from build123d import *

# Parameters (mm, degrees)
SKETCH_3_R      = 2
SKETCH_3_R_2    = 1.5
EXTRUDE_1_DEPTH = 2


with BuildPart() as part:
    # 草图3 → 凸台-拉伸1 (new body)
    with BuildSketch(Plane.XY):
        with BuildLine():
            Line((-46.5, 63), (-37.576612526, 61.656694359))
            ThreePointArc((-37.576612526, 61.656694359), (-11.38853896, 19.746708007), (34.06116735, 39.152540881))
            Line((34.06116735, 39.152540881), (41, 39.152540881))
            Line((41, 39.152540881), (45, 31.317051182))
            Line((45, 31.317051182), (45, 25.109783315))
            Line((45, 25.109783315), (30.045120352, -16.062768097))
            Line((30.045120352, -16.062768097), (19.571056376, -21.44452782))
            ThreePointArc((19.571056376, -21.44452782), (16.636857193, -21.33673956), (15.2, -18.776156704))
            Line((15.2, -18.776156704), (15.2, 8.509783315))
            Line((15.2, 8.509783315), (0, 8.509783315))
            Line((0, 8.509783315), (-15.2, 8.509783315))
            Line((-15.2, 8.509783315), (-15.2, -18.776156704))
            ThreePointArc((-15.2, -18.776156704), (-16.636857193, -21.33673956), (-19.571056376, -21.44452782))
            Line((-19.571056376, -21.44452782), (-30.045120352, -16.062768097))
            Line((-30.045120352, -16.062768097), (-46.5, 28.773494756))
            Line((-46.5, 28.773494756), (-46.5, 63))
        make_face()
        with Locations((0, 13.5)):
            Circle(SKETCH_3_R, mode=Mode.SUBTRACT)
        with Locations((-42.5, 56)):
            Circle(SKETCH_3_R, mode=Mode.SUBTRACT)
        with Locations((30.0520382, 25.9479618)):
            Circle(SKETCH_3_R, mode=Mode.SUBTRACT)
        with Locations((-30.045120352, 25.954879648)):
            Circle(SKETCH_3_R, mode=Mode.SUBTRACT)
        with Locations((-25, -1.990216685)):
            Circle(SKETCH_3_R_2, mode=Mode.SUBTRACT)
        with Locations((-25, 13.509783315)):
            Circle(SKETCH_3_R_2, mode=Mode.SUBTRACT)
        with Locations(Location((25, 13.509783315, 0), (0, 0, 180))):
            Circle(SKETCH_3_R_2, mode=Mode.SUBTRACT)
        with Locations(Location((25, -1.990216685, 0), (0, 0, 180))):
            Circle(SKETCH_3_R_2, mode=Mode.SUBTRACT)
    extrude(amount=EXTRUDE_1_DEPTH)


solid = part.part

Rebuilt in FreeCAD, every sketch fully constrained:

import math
import FreeCAD as App
import Part
import Sketcher

doc = App.newDocument("Part")
body = doc.addObject("PartDesign::Body", "Body")

# Sketch on XY plane
sketch1 = body.newObject("Sketcher::SketchObject", "Sketch")
sketch1.AttachmentSupport = (doc.getObject("XY_Plane"), [""])
sketch1.MapMode = "FlatFace"
sketch1.addGeometry(Part.LineSegment(App.Vector(-37.6, 61.7, 0), App.Vector(-46.5, 63, 0)), False)
sketch1.addGeometry(Part.LineSegment(App.Vector(-46.5, 63, 0), App.Vector(-46.5, 28.8, 0)), False)
sketch1.addGeometry(Part.LineSegment(App.Vector(-46.5, 28.8, 0), App.Vector(-30, -16.1, 0)), False)
sketch1.addGeometry(Part.LineSegment(App.Vector(-30, -16.1, 0), App.Vector(-19.6, -21.4, 0)), False)
sketch1.addGeometry(Part.ArcOfCircle(Part.Circle(App.Vector(-18.2, -18.8, 0), App.Vector(0, 0, 1), 3), math.radians(-117), math.radians(0)), False)
sketch1.addGeometry(Part.LineSegment(App.Vector(-15.2, -18.8, 0), App.Vector(-15.2, 8.5, 0)), False)
sketch1.addGeometry(Part.LineSegment(App.Vector(-15.2, 8.5, 0), App.Vector(15.2, 8.5, 0)), False)
sketch1.addGeometry(Part.LineSegment(App.Vector(15.2, 8.5, 0), App.Vector(15.2, -18.8, 0)), False)
sketch1.addGeometry(Part.ArcOfCircle(Part.Circle(App.Vector(18.2, -18.8, 0), App.Vector(0, 0, 1), 3), math.radians(-180), math.radians(-63)), False)
sketch1.addGeometry(Part.LineSegment(App.Vector(19.6, -21.4, 0), App.Vector(30, -16.1, 0)), False)
sketch1.addGeometry(Part.LineSegment(App.Vector(30, -16.1, 0), App.Vector(45, 25.1, 0)), False)
sketch1.addGeometry(Part.LineSegment(App.Vector(45, 25.1, 0), App.Vector(45, 31.3, 0)), False)
sketch1.addGeometry(Part.LineSegment(App.Vector(45, 31.3, 0), App.Vector(41, 39.2, 0)), False)
sketch1.addGeometry(Part.LineSegment(App.Vector(41, 39.2, 0), App.Vector(34.1, 39.2, 0)), False)
sketch1.addGeometry(Part.ArcOfCircle(Part.Circle(App.Vector(0, 56, 0), App.Vector(0, 0, 1), 38), math.radians(171), math.radians(334)), False)
sketch1.addGeometry(Part.Circle(App.Vector(25, -2, 0), App.Vector(0, 0, 1), 1.5), False)
sketch1.addGeometry(Part.Circle(App.Vector(25, 13.5, 0), App.Vector(0, 0, 1), 1.5), False)
sketch1.addGeometry(Part.Circle(App.Vector(30.1, 25.9, 0), App.Vector(0, 0, 1), 2), False)
sketch1.addGeometry(Part.Circle(App.Vector(0, 13.5, 0), App.Vector(0, 0, 1), 2), False)
sketch1.addGeometry(Part.Circle(App.Vector(-25, -2, 0), App.Vector(0, 0, 1), 1.5), False)
sketch1.addGeometry(Part.Circle(App.Vector(-25, 13.5, 0), App.Vector(0, 0, 1), 1.5), False)
sketch1.addGeometry(Part.Circle(App.Vector(-30, 26, 0), App.Vector(0, 0, 1), 2), False)
sketch1.addGeometry(Part.Circle(App.Vector(-42.5, 56, 0), App.Vector(0, 0, 1), 2), False)
sketch1.addConstraint(Sketcher.Constraint("Coincident", 0, 2, 1, 1))
sketch1.addConstraint(Sketcher.Constraint("Coincident", 1, 2, 2, 1))
sketch1.addConstraint(Sketcher.Constraint("Coincident", 2, 2, 3, 1))
sketch1.addConstraint(Sketcher.Constraint("Tangent", 3, 2, 4, 1))
sketch1.addConstraint(Sketcher.Constraint("Tangent", 4, 2, 5, 1))
sketch1.addConstraint(Sketcher.Constraint("Coincident", 5, 2, 6, 1))
sketch1.addConstraint(Sketcher.Constraint("Coincident", 6, 2, 7, 1))
sketch1.addConstraint(Sketcher.Constraint("Tangent", 7, 2, 8, 1))
sketch1.addConstraint(Sketcher.Constraint("Tangent", 8, 2, 9, 1))
sketch1.addConstraint(Sketcher.Constraint("Coincident", 9, 2, 10, 1))
sketch1.addConstraint(Sketcher.Constraint("Coincident", 10, 2, 11, 1))
sketch1.addConstraint(Sketcher.Constraint("Coincident", 11, 2, 12, 1))
sketch1.addConstraint(Sketcher.Constraint("Coincident", 12, 2, 13, 1))
sketch1.addConstraint(Sketcher.Constraint("Coincident", 13, 2, 14, 2))
sketch1.addConstraint(Sketcher.Constraint("Coincident", 14, 1, 0, 1))
sketch1.addConstraint(Sketcher.Constraint("Vertical", 1))
sketch1.addConstraint(Sketcher.Constraint("Vertical", 5))
sketch1.addConstraint(Sketcher.Constraint("Horizontal", 6))
sketch1.addConstraint(Sketcher.Constraint("Vertical", 7))
sketch1.addConstraint(Sketcher.Constraint("Vertical", 11))
sketch1.addConstraint(Sketcher.Constraint("Horizontal", 13))
sketch1.addConstraint(Sketcher.Constraint("Equal", 4, 8))
sketch1.addConstraint(Sketcher.Constraint("Equal", 15, 16))
sketch1.addConstraint(Sketcher.Constraint("Equal", 17, 18))
sketch1.addConstraint(Sketcher.Constraint("Equal", 16, 19))
sketch1.addConstraint(Sketcher.Constraint("Equal", 19, 20))
sketch1.addConstraint(Sketcher.Constraint("Equal", 18, 21))
sketch1.addConstraint(Sketcher.Constraint("Equal", 21, 22))
sketch1.addConstraint(Sketcher.Constraint("Symmetric", 4, 3, 8, 3, -2))
sketch1.addConstraint(Sketcher.Constraint("Symmetric", 15, 3, 19, 3, -2))
sketch1.addConstraint(Sketcher.Constraint("Symmetric", 16, 3, 20, 3, -2))
sketch1.addConstraint(Sketcher.Constraint("Symmetric", 2, 2, 9, 2, -2))
sketch1.addConstraint(Sketcher.Constraint("PointOnObject", 14, 3, -2))
sketch1.addConstraint(Sketcher.Constraint("PointOnObject", 18, 3, -2))
sketch1.addConstraint(Sketcher.Constraint("Horizontal", 14, 3, 22, 3))
sketch1.addConstraint(Sketcher.Constraint("Vertical", 15, 3, 16, 3))
sketch1.addConstraint(Sketcher.Constraint("Vertical", 21, 3, 2, 2))
sketch1.addConstraint(Sketcher.Constraint("Diameter", 15, 3.0))
sketch1.addConstraint(Sketcher.Constraint("Diameter", 17, 4.0))
sketch1.addConstraint(Sketcher.Constraint("Radius", 4, 3.0))
sketch1.addConstraint(Sketcher.Constraint("Radius", 14, 38.0))
sketch1.addConstraint(Sketcher.Constraint("DistanceX", 6, 1, 6, 2, 30.4))
sketch1.addConstraint(Sketcher.Constraint("DistanceY", -1, 1, 14, 3, 56.0))
sketch1.addConstraint(Sketcher.Constraint("DistanceX", -1, 1, 15, 3, 25.0))
sketch1.addConstraint(Sketcher.Constraint("DistanceY", -1, 1, 0, 2, 63.0))
sketch1.addConstraint(Sketcher.Constraint("DistanceX", -1, 1, 10, 2, 45.0))
sketch1.addConstraint(Sketcher.Constraint("DistanceX", -1, 1, 12, 2, 41.0))
sketch1.addConstraint(Sketcher.Constraint("DistanceX", 0, 2, 22, 3, 4.0))
sketch1.addConstraint(Sketcher.Constraint("DistanceY", 5, 2, 20, 3, 5.0))
sketch1.addConstraint(Sketcher.Constraint("DistanceY", -1, 1, 18, 3, 13.5))
sketch1.addConstraint(Sketcher.Constraint("DistanceX", 22, 3, -1, 1, 42.5))
sketch1.addConstraint(Sketcher.Constraint("DistanceY", 15, 3, 16, 3, 15.5))
sketch1.addConstraint(Sketcher.Constraint("DistanceY", 16, 3, 10, 2, 11.6))
sketch1.addConstraint(Sketcher.Constraint("DistanceY", 5, 1, 5, 2, 27.28594))
sketch1.addConstraint(Sketcher.Constraint("DistanceY", 1, 2, 14, 1, 32.8832))
sketch1.addConstraint(Sketcher.Constraint("DistanceX", 13, 2, 13, 1, 6.938833))
sketch1.addConstraint(Sketcher.Constraint("DistanceY", 1, 2, 1, 1, 34.226505))
sketch1.addConstraint(Sketcher.Constraint("DistanceY", 11, 1, 11, 2, 6.207268))
sketch1.addConstraint(Sketcher.Constraint("DistanceX", -1, 1, 17, 3, 30.052038))
sketch1.addConstraint(Sketcher.Constraint("DistanceY", -1, 1, 17, 3, 25.947962))
sketch1.addConstraint(Sketcher.Constraint("DistanceX", 21, 3, -1, 1, 30.04512))
sketch1.addConstraint(Sketcher.Constraint("DistanceY", -1, 1, 21, 3, 25.95488))
sketch1.addConstraint(Sketcher.Constraint("DistanceY", 2, 2, -1, 1, 16.062768))
sketch1.addConstraint(Sketcher.Constraint("DistanceY", -1, 1, 11, 2, 31.317051))
pad1 = body.newObject("PartDesign::Pad", "Pad")
pad1.Profile = sketch1
pad1.Length = 2

doc.recompute()
